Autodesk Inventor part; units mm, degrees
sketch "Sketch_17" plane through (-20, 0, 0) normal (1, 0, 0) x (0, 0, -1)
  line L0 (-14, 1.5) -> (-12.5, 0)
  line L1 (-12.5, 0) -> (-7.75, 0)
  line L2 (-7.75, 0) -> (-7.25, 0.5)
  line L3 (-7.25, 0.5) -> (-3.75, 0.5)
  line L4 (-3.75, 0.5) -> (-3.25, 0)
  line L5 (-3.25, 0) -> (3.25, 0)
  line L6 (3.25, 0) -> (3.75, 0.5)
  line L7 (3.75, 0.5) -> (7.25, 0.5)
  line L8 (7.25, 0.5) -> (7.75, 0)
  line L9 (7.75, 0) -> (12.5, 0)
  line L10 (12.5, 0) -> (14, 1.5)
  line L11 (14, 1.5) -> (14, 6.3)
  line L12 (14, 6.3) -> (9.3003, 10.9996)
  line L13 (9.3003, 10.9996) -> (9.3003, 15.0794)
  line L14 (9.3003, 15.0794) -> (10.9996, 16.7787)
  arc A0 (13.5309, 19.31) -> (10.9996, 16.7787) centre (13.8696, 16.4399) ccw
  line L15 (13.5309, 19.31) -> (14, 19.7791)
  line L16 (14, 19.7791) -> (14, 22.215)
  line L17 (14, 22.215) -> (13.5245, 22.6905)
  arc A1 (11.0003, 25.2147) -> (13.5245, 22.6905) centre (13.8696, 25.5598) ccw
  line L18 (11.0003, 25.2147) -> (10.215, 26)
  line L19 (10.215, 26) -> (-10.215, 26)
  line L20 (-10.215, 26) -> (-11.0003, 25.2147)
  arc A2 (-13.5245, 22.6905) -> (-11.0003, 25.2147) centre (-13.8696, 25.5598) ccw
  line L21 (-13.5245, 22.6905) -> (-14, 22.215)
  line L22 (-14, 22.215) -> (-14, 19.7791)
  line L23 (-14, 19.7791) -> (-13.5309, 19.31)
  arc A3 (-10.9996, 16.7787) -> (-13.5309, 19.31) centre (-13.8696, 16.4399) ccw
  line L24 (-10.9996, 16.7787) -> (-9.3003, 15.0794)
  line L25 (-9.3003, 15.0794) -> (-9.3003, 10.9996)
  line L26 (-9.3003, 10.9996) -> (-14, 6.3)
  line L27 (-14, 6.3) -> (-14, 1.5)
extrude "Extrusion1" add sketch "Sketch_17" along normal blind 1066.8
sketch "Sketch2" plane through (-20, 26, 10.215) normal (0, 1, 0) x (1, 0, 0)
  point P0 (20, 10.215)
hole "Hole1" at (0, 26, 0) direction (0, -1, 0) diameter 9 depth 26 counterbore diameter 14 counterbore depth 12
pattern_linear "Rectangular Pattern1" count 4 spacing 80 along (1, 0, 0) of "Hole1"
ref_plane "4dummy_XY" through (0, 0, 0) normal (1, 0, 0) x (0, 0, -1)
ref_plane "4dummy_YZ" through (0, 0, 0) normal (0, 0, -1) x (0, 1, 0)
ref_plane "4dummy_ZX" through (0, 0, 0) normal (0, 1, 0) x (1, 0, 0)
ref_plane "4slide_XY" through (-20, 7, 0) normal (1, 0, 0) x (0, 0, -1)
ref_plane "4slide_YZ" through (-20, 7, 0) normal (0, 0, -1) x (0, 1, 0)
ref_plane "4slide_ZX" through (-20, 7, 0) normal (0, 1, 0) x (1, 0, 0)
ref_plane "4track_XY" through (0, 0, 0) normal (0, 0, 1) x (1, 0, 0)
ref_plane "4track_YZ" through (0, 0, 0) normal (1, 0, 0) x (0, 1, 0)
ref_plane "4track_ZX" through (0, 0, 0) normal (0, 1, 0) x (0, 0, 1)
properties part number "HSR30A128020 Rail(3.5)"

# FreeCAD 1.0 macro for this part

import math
import FreeCAD as App
import Part
import Sketcher
from FreeCAD import Vector
Q = App.Units.Quantity

doc = App.newDocument("Part")
body = doc.addObject("PartDesign::Body", "Body")

# Sketch on YZ plane
sketch1 = body.newObject("Sketcher::SketchObject", "Sketch")
sketch1.AttachmentSupport = (doc.getObject("YZ_Plane"), [""])
sketch1.MapMode = "FlatFace"
sketch1.AttachmentOffset = App.Placement(Vector(0, 0, -20), App.Rotation())
sketch1.addGeometry([
    Part.LineSegment(Vector(6.3, 14, 0), Vector(1.5, 14, 0)),  # 0
    Part.LineSegment(Vector(1.5, 14, 0), Vector(0, 12.5, 0)),  # 1
    Part.LineSegment(Vector(0, 12.5, 0), Vector(0, 7.8, 0)),  # 2
    Part.LineSegment(Vector(0, 7.8, 0), Vector(0.5, 7.2, 0)),  # 3
    Part.LineSegment(Vector(0.5, 7.2, 0), Vector(0.5, 3.8, 0)),  # 4
    Part.LineSegment(Vector(0.5, 3.8, 0), Vector(0, 3.2, 0)),  # 5
    Part.LineSegment(Vector(0, 3.2, 0), Vector(0, -3.2, 0)),  # 6
    Part.LineSegment(Vector(0, -3.2, 0), Vector(0.5, -3.8, 0)),  # 7
    Part.LineSegment(Vector(0.5, -3.8, 0), Vector(0.5, -7.2, 0)),  # 8
    Part.LineSegment(Vector(0.5, -7.2, 0), Vector(0, -7.8, 0)),  # 9
    Part.LineSegment(Vector(0, -7.8, 0), Vector(0, -12.5, 0)),  # 10
    Part.LineSegment(Vector(0, -12.5, 0), Vector(1.5, -14, 0)),  # 11
    Part.LineSegment(Vector(1.5, -14, 0), Vector(6.3, -14, 0)),  # 12
    Part.LineSegment(Vector(6.3, -14, 0), Vector(11, -9.3, 0)),  # 13
    Part.LineSegment(Vector(11, -9.3, 0), Vector(15.1, -9.3, 0)),  # 14
    Part.LineSegment(Vector(15.1, -9.3, 0), Vector(16.8, -11, 0)),  # 15
    Part.ArcOfCircle(Part.Circle(Vector(16.4, -13.9, 0), Vector(0, 0, 1), 2.9), math.radians(7), math.radians(83)),  # 16
    Part.LineSegment(Vector(19.3, -13.5, 0), Vector(19.8, -14, 0)),  # 17
    Part.LineSegment(Vector(19.8, -14, 0), Vector(22.2, -14, 0)),  # 18
    Part.LineSegment(Vector(22.2, -14, 0), Vector(22.7, -13.5, 0)),  # 19
    Part.ArcOfCircle(Part.Circle(Vector(25.6, -13.9, 0), Vector(0, 0, 1), 2.9), math.radians(97), math.radians(173)),  # 20
    Part.LineSegment(Vector(25.2, -11, 0), Vector(26, -10.2, 0)),  # 21
    Part.LineSegment(Vector(26, -10.2, 0), Vector(26, 10.2, 0)),  # 22
    Part.LineSegment(Vector(26, 10.2, 0), Vector(25.2, 11, 0)),  # 23
    Part.ArcOfCircle(Part.Circle(Vector(25.6, 13.9, 0), Vector(0, 0, 1), 2.9), math.radians(-173), math.radians(-97)),  # 24
    Part.LineSegment(Vector(22.7, 13.5, 0), Vector(22.2, 14, 0)),  # 25
    Part.LineSegment(Vector(22.2, 14, 0), Vector(19.8, 14, 0)),  # 26
    Part.LineSegment(Vector(19.8, 14, 0), Vector(19.3, 13.5, 0)),  # 27
    Part.ArcOfCircle(Part.Circle(Vector(16.4, 13.9, 0), Vector(0, 0, 1), 2.9), math.radians(-83), math.radians(-7)),  # 28
    Part.LineSegment(Vector(16.8, 11, 0), Vector(15.1, 9.3, 0)),  # 29
    Part.LineSegment(Vector(15.1, 9.3, 0), Vector(11, 9.3, 0)),  # 30
    Part.LineSegment(Vector(11, 9.3, 0), Vector(6.3, 14, 0)),  # 31
], False)
sketch1.addConstraint([
    Sketcher.Constraint("Coincident", 0, 2, 1, 1),
    Sketcher.Constraint("Coincident", 1, 2, 2, 1),
    Sketcher.Constraint("Coincident", 2, 2, 3, 1),
    Sketcher.Constraint("Coincident", 3, 2, 4, 1),
    Sketcher.Constraint("Coincident", 4, 2, 5, 1),
    Sketcher.Constraint("Coincident", 5, 2, 6, 1),
    Sketcher.Constraint("Coincident", 6, 2, 7, 1),
    Sketcher.Constraint("Coincident", 7, 2, 8, 1),
    Sketcher.Constraint("Coincident", 8, 2, 9, 1),
    Sketcher.Constraint("Coincident", 9, 2, 10, 1),
    Sketcher.Constraint("Coincident", 10, 2, 11, 1),
    Sketcher.Constraint("Coincident", 11, 2, 12, 1),
    Sketcher.Constraint("Coincident", 12, 2, 13, 1),
    Sketcher.Constraint("Coincident", 13, 2, 14, 1),
    Sketcher.Constraint("Coincident", 14, 2, 15, 1),
    Sketcher.Constraint("Coincident", 15, 2, 16, 2),
    Sketcher.Constraint("Coincident", 16, 1, 17, 1),
    Sketcher.Constraint("Coincident", 17, 2, 18, 1),
    Sketcher.Constraint("Coincident", 18, 2, 19, 1),
    Sketcher.Constraint("Coincident", 19, 2, 20, 2),
    Sketcher.Constraint("Coincident", 20, 1, 21, 1),
    Sketcher.Constraint("Coincident", 21, 2, 22, 1),
    Sketcher.Constraint("Coincident", 22, 2, 23, 1),
    Sketcher.Constraint("Coincident", 23, 2, 24, 2),
    Sketcher.Constraint("Coincident", 24, 1, 25, 1),
    Sketcher.Constraint("Coincident", 25, 2, 26, 1),
    Sketcher.Constraint("Coincident", 26, 2, 27, 1),
    Sketcher.Constraint("Coincident", 27, 2, 28, 2),
    Sketcher.Constraint("Coincident", 28, 1, 29, 1),
    Sketcher.Constraint("Coincident", 29, 2, 30, 1),
    Sketcher.Constraint("Coincident", 30, 2, 31, 1),
    Sketcher.Constraint("Coincident", 31, 2, 0, 1),
    Sketcher.Constraint("Horizontal", 0),
    Sketcher.Constraint("Vertical", 2),
    Sketcher.Constraint("Vertical", 4),
    Sketcher.Constraint("Vertical", 6),
    Sketcher.Constraint("Vertical", 8),
    Sketcher.Constraint("Vertical", 10),
    Sketcher.Constraint("Horizontal", 12),
    Sketcher.Constraint("Horizontal", 14),
    Sketcher.Constraint("Horizontal", 18),
    Sketcher.Constraint("Vertical", 22),
    Sketcher.Constraint("Horizontal", 26),
    Sketcher.Constraint("Horizontal", 30),
    Sketcher.Constraint("Equal", 16, 20),
    Sketcher.Constraint("Equal", 20, 24),
    Sketcher.Constraint("Equal", 24, 28),
    Sketcher.Constraint("Symmetric", 5, 2, 6, 2, -1, 1),
    Sketcher.Constraint("Symmetric", 2, 2, 9, 2, -1, 1),
    Sketcher.Constraint("Symmetric", 20, 3, 24, 3, -1),
    Sketcher.Constraint("Symmetric", 16, 3, 28, 3, -1),
    Sketcher.Constraint("Symmetric", 4, 2, 7, 2, -1),
    Sketcher.Constraint("Symmetric", 1, 2, 10, 2, -1),
    Sketcher.Constraint("Symmetric", 0, 2, 11, 2, -1),
    Sketcher.Constraint("Symmetric", 18, 2, 25, 2, -1),
    Sketcher.Constraint("Symmetric", 14, 2, 29, 2, -1),
    Sketcher.Constraint("Perpendicular", 1, 3),
    Sketcher.Constraint("Perpendicular", 3, 5),
    Sketcher.Constraint("Perpendicular", 5, 7),
    Sketcher.Constraint("Perpendicular", 7, 9),
    Sketcher.Constraint("Perpendicular", 11, 13),
    Sketcher.Constraint("Perpendicular", 13, 15),
    Sketcher.Constraint("Parallel", 15, 17),
    Sketcher.Constraint("Perpendicular", 17, 19),
    Sketcher.Constraint("Parallel", 19, 21),
    Sketcher.Constraint("Perpendicular", 21, 23),
    Sketcher.Constraint("Parallel", 23, 25),
    Sketcher.Constraint("Perpendicular", 25, 27),
    Sketcher.Constraint("Parallel", 27, 29),
    Sketcher.Constraint("Perpendicular", 29, 31),
    Sketcher.Constraint("Horizontal", 16, 3, 20, 3),
    Sketcher.Constraint("Horizontal", 12, 2, 17, 2),
    Sketcher.Constraint("Vertical", 20, 1, 23, 2),
    Sketcher.Constraint("Vertical", 17, 2, 26, 2),
    Sketcher.Constraint("Vertical", 13, 2, 30, 2),
    Sketcher.Constraint("Radius", 16, Q("2.89 mm")),
    Sketcher.Constraint("DistanceX", 0, 2, 0, 1, Q("4.8 mm")),
    Sketcher.Constraint("DistanceY", 4, 2, 4, 1, Q("3.5 mm")),
    Sketcher.Constraint("DistanceY", 6, 2, 6, 1, Q("6.5 mm")),
    Sketcher.Constraint("DistanceY", -1, 1, 0, 2, Q("14 mm")),
    Sketcher.Constraint("DistanceX", -1, 1, 21, 2, Q("26 mm")),
    Sketcher.Constraint("DistanceX", 3, 2, 0, 2, Q("1 mm")),
    Sketcher.Constraint("DistanceY", 4, 2, 2, 2, Q("4 mm")),
    Sketcher.Constraint("DistanceY", 22, 1, 22, 2, Q("20.43 mm")),
    Sketcher.Constraint("DistanceX", 18, 1, 18, 2, Q("2.436 mm")),
    Sketcher.Constraint("DistanceX", -1, 1, 16, 3, Q("16.44 mm")),
    Sketcher.Constraint("DistanceX", -1, 1, 16, 1, Q("19.31 mm")),
    Sketcher.Constraint("DistanceX", 16, 3, 20, 3, Q("9.12 mm")),
    Sketcher.Constraint("DistanceY", 16, 3, 15, 2, Q("2.87 mm")),
    Sketcher.Constraint("DistanceX", 14, 1, 14, 2, Q("4.0798 mm")),
    Sketcher.Constraint("DistanceY", 16, 1, -1, 1, Q("13.531 mm")),
])
pad1 = body.newObject("PartDesign::Pad", "Pad")
pad1.Profile = sketch1
pad1.Length = 1066.8

# Sketch on XZ plane
sketch2 = body.newObject("Sketcher::SketchObject", "Sketch001")
sketch2.AttachmentSupport = (doc.getObject("XZ_Plane"), [""])
sketch2.MapMode = "FlatFace"
sketch2.AttachmentOffset = App.Placement(Vector(0, 0, -26), App.Rotation())
sketch2.addGeometry(Part.Circle(Vector(0, 0, 0), Vector(0, 0, 1), 4.5), False)
sketch2.addConstraint([
    Sketcher.Constraint("Coincident", 0, 3, -1, 1),
    Sketcher.Constraint("Diameter", 0, Q("9 mm")),
])
doc.recompute()
hole = body.newObject("PartDesign::Hole", "Hole")
hole.Profile = sketch2
hole.ThreadType = "None"
hole.Diameter = 9
hole.DepthType = "Dimension"
hole.Depth = 26
hole.DrillPoint = "Flat"
hole.HoleCutType = "Counterbore"
hole.HoleCutDiameter = 14
hole.HoleCutDepth = 12
hole.Reversed = True
doc.recompute()

linearpattern = body.newObject("PartDesign::LinearPattern", "LinearPattern")
linearpattern.Originals = [hole]
linearpattern.Direction = (doc.getObject("X_Axis"), [""])
linearpattern.Mode = "offset"
linearpattern.Offset = 80
linearpattern.Occurrences = 4
body.Tip = linearpattern

doc.recompute()
